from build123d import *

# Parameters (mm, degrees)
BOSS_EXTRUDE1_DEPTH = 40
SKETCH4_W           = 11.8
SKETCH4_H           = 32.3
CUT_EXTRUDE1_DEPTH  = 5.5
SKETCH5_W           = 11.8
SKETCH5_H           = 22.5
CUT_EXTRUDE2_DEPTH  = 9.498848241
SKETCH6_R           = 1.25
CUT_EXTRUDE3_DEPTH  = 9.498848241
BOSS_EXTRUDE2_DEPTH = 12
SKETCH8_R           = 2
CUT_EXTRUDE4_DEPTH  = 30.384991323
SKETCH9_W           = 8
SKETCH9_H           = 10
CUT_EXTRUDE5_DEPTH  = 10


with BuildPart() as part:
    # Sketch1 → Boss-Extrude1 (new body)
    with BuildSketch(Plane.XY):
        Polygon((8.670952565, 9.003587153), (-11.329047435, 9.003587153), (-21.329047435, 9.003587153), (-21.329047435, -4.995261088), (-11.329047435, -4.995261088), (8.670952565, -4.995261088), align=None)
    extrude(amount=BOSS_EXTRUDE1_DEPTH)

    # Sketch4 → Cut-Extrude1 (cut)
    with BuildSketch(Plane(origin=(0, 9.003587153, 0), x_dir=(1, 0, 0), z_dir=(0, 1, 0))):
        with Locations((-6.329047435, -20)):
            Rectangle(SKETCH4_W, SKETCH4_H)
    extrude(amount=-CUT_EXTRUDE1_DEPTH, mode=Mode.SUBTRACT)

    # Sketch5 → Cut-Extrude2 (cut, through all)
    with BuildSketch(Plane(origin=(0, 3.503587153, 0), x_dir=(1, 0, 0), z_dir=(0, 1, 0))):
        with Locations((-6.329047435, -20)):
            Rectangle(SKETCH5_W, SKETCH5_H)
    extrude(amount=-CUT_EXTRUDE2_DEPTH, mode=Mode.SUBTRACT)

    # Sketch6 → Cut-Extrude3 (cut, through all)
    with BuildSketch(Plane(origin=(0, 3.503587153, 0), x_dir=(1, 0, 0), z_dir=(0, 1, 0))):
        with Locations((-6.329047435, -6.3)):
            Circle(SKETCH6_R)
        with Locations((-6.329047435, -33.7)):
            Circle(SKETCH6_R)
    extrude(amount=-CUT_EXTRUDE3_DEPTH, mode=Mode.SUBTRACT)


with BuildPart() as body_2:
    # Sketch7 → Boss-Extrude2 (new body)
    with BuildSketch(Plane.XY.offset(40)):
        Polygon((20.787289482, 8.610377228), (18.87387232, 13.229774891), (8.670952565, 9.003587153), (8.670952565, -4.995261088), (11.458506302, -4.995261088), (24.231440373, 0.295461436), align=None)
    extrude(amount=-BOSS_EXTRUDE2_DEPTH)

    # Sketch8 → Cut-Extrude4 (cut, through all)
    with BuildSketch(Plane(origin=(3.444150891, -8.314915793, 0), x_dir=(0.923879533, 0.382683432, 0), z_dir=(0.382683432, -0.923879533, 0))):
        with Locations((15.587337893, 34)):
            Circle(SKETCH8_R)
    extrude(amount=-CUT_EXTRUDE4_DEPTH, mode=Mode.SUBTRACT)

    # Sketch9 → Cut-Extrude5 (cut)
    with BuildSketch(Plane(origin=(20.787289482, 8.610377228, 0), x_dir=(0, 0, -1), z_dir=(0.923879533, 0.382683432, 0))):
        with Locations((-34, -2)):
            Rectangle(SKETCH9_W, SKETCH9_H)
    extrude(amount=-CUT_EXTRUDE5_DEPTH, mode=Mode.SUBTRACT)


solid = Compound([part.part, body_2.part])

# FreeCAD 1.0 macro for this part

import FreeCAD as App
import Part
import Sketcher
from FreeCAD import Vector
Q = App.Units.Quantity


def add_polygon(sketch, points):
    """Adds a closed chain of lines whose ends are joined by coincident constraints."""
    first, n = sketch.GeometryCount, len(points)
    for a, b in zip(points, points[1:] + points[:1]):
        sketch.addGeometry(Part.LineSegment(App.Vector(*a, 0), App.Vector(*b, 0)), False)
    for i in range(n):
        sketch.addConstraint(Sketcher.Constraint("Coincident", first + i, 2, first + (i + 1) % n, 1))

doc = App.newDocument("Part")
body = doc.addObject("PartDesign::Body", "Body")

sketch1 = body.newObject("Sketcher::SketchObject", "Sketch")
sketch1.AttachmentSupport = (doc.getObject("XY_Plane"), [""])
sketch1.MapMode = "FlatFace"
add_polygon(sketch1, [(9, 9), (-21, 9), (-21, -5), (9, -5)])
sketch1.addConstraint([
    Sketcher.Constraint("Horizontal", 0),
    Sketcher.Constraint("Vertical", 1),
    Sketcher.Constraint("Horizontal", 2),
    Sketcher.Constraint("Vertical", 3),
    Sketcher.Constraint("DistanceX", 0, 2, 0, 1, 30.0),
    Sketcher.Constraint("DistanceY", 1, 2, 1, 1, 13.998848),
    Sketcher.Constraint("DistanceY", 1, 2, -1, 1, 4.995261),
    Sketcher.Constraint("DistanceX", 0, 2, -1, 1, 21.329047),
])
pad1 = body.newObject("PartDesign::Pad", "Pad")
pad1.Profile = sketch1
pad1.Length = 40

sketch2 = body.newObject("Sketcher::SketchObject", "Sketch001")
sketch2.AttachmentSupport = (doc.getObject("XZ_Plane"), [""])
sketch2.MapMode = "FlatFace"
sketch2.AttachmentOffset = App.Placement(Vector(0, 0, -9.003587), App.Rotation())
add_polygon(sketch2, [(-12, 4), (-12, 36), (0, 36), (0, 4)])
sketch2.addConstraint([
    Sketcher.Constraint("Vertical", 0),
    Sketcher.Constraint("Horizontal", 1),
    Sketcher.Constraint("Vertical", 2),
    Sketcher.Constraint("Horizontal", 3),
    Sketcher.Constraint("DistanceX", 1, 1, 1, 2, 11.8),
    Sketcher.Constraint("DistanceY", 0, 1, 0, 2, 32.3),
    Sketcher.Constraint("DistanceY", -1, 1, 0, 2, 36.15),
    Sketcher.Constraint("DistanceX", 0, 2, -1, 1, 12.229047),
])
pocket1 = body.newObject("PartDesign::Pocket", "Pocket")
pocket1.Profile = sketch2
pocket1.Length = 5.5
pocket1.Reversed = True

sketch3 = body.newObject("Sketcher::SketchObject", "Sketch002")
sketch3.AttachmentSupport = (doc.getObject("XZ_Plane"), [""])
sketch3.MapMode = "FlatFace"
sketch3.AttachmentOffset = App.Placement(Vector(0, 0, -3.503587), App.Rotation())
add_polygon(sketch3, [(-12, 9), (-12, 31), (0, 31), (0, 9)])
sketch3.addConstraint([
    Sketcher.Constraint("Vertical", 0),
    Sketcher.Constraint("Horizontal", 1),
    Sketcher.Constraint("Vertical", 2),
    Sketcher.Constraint("Horizontal", 3),
    Sketcher.Constraint("DistanceX", 1, 1, 1, 2, 11.8),
    Sketcher.Constraint("DistanceY", 0, 1, 0, 2, 22.5),
    Sketcher.Constraint("DistanceY", -1, 1, 0, 2, 31.25),
    Sketcher.Constraint("DistanceX", 0, 2, -1, 1, 12.229047),
])
pocket2 = body.newObject("PartDesign::Pocket", "Pocket001")
pocket2.Profile = sketch3
pocket2.Type = "ThroughAll"
pocket2.Reversed = True

sketch4 = body.newObject("Sketcher::SketchObject", "Sketch003")
sketch4.AttachmentSupport = (doc.getObject("XZ_Plane"), [""])
sketch4.MapMode = "FlatFace"
sketch4.AttachmentOffset = App.Placement(Vector(0, 0, -3.503587), App.Rotation())
sketch4.addGeometry([
    Part.Circle(Vector(-6.3, 6.3, 0), Vector(0, 0, 1), 1.2),
    Part.Circle(Vector(-6.3, 33.7, 0), Vector(0, 0, 1), 1.2),
], False)
sketch4.addConstraint([
    Sketcher.Constraint("Equal", 0, 1),
    Sketcher.Constraint("Vertical", 0, 3, 1, 3),
    Sketcher.Constraint("Diameter", 0, 2.5),
    Sketcher.Constraint("DistanceY", -1, 1, 0, 3, 6.3),
    Sketcher.Constraint("DistanceY", -1, 1, 1, 3, 33.7),
    Sketcher.Constraint("DistanceX", 0, 3, -1, 1, 6.329047),
])
pocket3 = body.newObject("PartDesign::Pocket", "Pocket002")
pocket3.Profile = sketch4
pocket3.Type = "ThroughAll"
pocket3.Reversed = True
body2 = doc.addObject("PartDesign::Body", "Body001")

sketch5 = body2.newObject("Sketcher::SketchObject", "Sketch004")
sketch5.AttachmentSupport = (doc.getObject("XY_Plane001"), [""])
sketch5.MapMode = "FlatFace"
sketch5.AttachmentOffset = App.Placement(Vector(0, 0, 40), App.Rotation())
add_polygon(sketch5, [(20.8, 8.6), (18.9, 13.2), (8.7, 9), (8.7, -5), (11.5, -5), (24.2, 0.3)])
sketch5.addConstraint([
    Sketcher.Constraint("Vertical", 2),
    Sketcher.Constraint("Horizontal", 3),
    Sketcher.Constraint("Perpendicular", 0, 1),
    Sketcher.Constraint("Parallel", 1, 4),
    Sketcher.Constraint("Perpendicular", 4, 5),
    Sketcher.Constraint("Distance", 0, 5.0),
    Sketcher.Constraint("Distance", 5, 9.0),
    Sketcher.Constraint("Angle", 0, Q("112.5 deg")),
    Sketcher.Constraint("DistanceY", 2, 2, 2, 1, 13.998848),
    Sketcher.Constraint("Distance", 1, 11.043561),
    Sketcher.Constraint("DistanceY", 2, 2, -1, 1, 4.995261),
    Sketcher.Constraint("DistanceX", -1, 1, 4, 2, 24.23144),
])
pad2 = body2.newObject("PartDesign::Pad", "Pad001")
pad2.Profile = sketch5
pad2.Length = 12
pad2.Reversed = True

sketch6 = body2.newObject("Sketcher::SketchObject", "Sketch005")
sketch6.Placement = App.Placement(Vector(3.444151, -8.314916, 0), App.Rotation(Vector(0.923879533, 0.382683432, 0), Vector(0, 0, 1.000000001), Vector(0.382683432, -0.923879533, 0), "ZXY"))
sketch6.addGeometry(Part.Circle(Vector(15.6, 34, 0), Vector(0, 0, 1), 2), False)
sketch6.addConstraint([
    Sketcher.Constraint("Diameter", 0, 4.0),
    Sketcher.Constraint("DistanceY", -1, 1, 0, 3, 34.0),
    Sketcher.Constraint("DistanceX", -1, 1, 0, 3, 15.587338),
])
pocket4 = body2.newObject("PartDesign::Pocket", "Pocket003")
pocket4.Profile = sketch6
pocket4.Type = "ThroughAll"

sketch7 = body2.newObject("Sketcher::SketchObject", "Sketch006")
sketch7.Placement = App.Placement(Vector(20.787289, 8.610377, 0), App.Rotation(Vector(0, 0, -1), Vector(-0.382683432, 0.923879533, 0), Vector(0.923879533, 0.382683432, 0), "ZXY"))
add_polygon(sketch7, [(-38, 3), (-38, -7), (-30, -7), (-30, 3)])
sketch7.addConstraint([
    Sketcher.Constraint("Vertical", 0),
    Sketcher.Constraint("Horizontal", 1),
    Sketcher.Constraint("Vertical", 2),
    Sketcher.Constraint("Horizontal", 3),
    Sketcher.Constraint("DistanceX", 1, 1, 1, 2, 8.0),
    Sketcher.Constraint("DistanceY", 0, 2, 0, 1, 10.0),
    Sketcher.Constraint("DistanceX", 0, 2, -1, 1, 38.0),
    Sketcher.Constraint("DistanceY", 0, 2, -1, 1, 7.0),
])
pocket5 = body2.newObject("PartDesign::Pocket", "Pocket004")
pocket5.Profile = sketch7
pocket5.Length = 10

doc.recompute()
